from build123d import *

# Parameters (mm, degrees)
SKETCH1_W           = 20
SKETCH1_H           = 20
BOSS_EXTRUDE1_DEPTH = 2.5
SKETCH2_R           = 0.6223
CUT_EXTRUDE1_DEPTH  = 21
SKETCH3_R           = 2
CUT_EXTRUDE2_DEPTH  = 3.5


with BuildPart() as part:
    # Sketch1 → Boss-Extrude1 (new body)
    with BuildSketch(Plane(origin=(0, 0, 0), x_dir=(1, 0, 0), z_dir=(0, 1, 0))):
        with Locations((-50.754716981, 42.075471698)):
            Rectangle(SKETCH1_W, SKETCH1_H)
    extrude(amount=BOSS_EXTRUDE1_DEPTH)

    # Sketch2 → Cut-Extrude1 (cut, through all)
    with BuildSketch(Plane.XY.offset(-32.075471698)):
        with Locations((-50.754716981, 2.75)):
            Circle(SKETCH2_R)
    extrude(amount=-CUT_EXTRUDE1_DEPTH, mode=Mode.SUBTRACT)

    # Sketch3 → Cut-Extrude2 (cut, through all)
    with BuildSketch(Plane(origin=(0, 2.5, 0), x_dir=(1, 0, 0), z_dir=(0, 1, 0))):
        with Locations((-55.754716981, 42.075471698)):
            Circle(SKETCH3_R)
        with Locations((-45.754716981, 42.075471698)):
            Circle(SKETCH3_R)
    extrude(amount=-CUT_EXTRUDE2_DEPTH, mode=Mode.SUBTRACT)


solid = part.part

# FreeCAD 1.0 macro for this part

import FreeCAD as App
import Part
import Sketcher
from FreeCAD import Vector


def add_polygon(sketch, points):
    """Adds a closed chain of lines whose ends are joined by coincident constraints."""
    first, n = sketch.GeometryCount, len(points)
    for a, b in zip(points, points[1:] + points[:1]):
        sketch.addGeometry(Part.LineSegment(App.Vector(*a, 0), App.Vector(*b, 0)), False)
    for i in range(n):
        sketch.addConstraint(Sketcher.Constraint("Coincident", first + i, 2, first + (i + 1) % n, 1))

doc = App.newDocument("Part")
body = doc.addObject("PartDesign::Body", "Body")

# Sketch on XZ plane
sketch1 = body.newObject("Sketcher::SketchObject", "Sketch")
sketch1.AttachmentSupport = (doc.getObject("XZ_Plane"), [""])
sketch1.MapMode = "FlatFace"
add_polygon(sketch1, [(-61, -52), (-61, -32), (-41, -32), (-41, -52)])  # lines 0-3
sketch1.addConstraint([
    Sketcher.Constraint("Vertical", 0),
    Sketcher.Constraint("Horizontal", 1),
    Sketcher.Constraint("Vertical", 2),
    Sketcher.Constraint("Horizontal", 3),
    Sketcher.Constraint("Equal", 3, 0),
    Sketcher.Constraint("DistanceX", 1, 1, 1, 2, 20.0),
    Sketcher.Constraint("DistanceY", 0, 2, -1, 1, 32.075472),
    Sketcher.Constraint("DistanceX", 0, 2, -1, 1, 60.754717),
])
pad1 = body.newObject("PartDesign::Pad", "Pad")
pad1.Profile = sketch1
pad1.Length = 2.5
pad1.Reversed = True

# Sketch on XY plane
sketch2 = body.newObject("Sketcher::SketchObject", "Sketch001")
sketch2.AttachmentSupport = (doc.getObject("XY_Plane"), [""])
sketch2.MapMode = "FlatFace"
sketch2.AttachmentOffset = App.Placement(Vector(0, 0, -32.075472), App.Rotation())
sketch2.addGeometry(Part.Circle(Vector(-50.8, 2.8, 0), Vector(0, 0, 1), 0.6), False)
sketch2.addConstraint([
    Sketcher.Constraint("Diameter", 0, 1.2446),
    Sketcher.Constraint("DistanceY", -1, 1, 0, 3, 2.75),
    Sketcher.Constraint("DistanceX", 0, 3, -1, 1, 50.754717),
])
pocket1 = body.newObject("PartDesign::Pocket", "Pocket")
pocket1.Profile = sketch2
pocket1.Type = "ThroughAll"

# Sketch on XZ plane
sketch3 = body.newObject("Sketcher::SketchObject", "Sketch002")
sketch3.AttachmentSupport = (doc.getObject("XZ_Plane"), [""])
sketch3.MapMode = "FlatFace"
sketch3.AttachmentOffset = App.Placement(Vector(0, 0, -2.5), App.Rotation())
sketch3.addGeometry([
    Part.Circle(Vector(-55.8, -42.1, 0), Vector(0, 0, 1), 2),
    Part.Circle(Vector(-45.8, -42.1, 0), Vector(0, 0, 1), 2),
], False)
sketch3.addConstraint([
    Sketcher.Constraint("Equal", 0, 1),
    Sketcher.Constraint("Horizontal", 0, 3, 1, 3),
    Sketcher.Constraint("Diameter", 0, 4.0),
    Sketcher.Constraint("DistanceX", 0, 3, 1, 3, 10.0),
    Sketcher.Constraint("DistanceY", 0, 3, -1, 1, 42.075472),
    Sketcher.Constraint("DistanceX", 0, 3, -1, 1, 55.754717),
])
pocket2 = body.newObject("PartDesign::Pocket", "Pocket001")
pocket2.Profile = sketch3
pocket2.Type = "ThroughAll"
pocket2.Reversed = True

doc.recompute()
